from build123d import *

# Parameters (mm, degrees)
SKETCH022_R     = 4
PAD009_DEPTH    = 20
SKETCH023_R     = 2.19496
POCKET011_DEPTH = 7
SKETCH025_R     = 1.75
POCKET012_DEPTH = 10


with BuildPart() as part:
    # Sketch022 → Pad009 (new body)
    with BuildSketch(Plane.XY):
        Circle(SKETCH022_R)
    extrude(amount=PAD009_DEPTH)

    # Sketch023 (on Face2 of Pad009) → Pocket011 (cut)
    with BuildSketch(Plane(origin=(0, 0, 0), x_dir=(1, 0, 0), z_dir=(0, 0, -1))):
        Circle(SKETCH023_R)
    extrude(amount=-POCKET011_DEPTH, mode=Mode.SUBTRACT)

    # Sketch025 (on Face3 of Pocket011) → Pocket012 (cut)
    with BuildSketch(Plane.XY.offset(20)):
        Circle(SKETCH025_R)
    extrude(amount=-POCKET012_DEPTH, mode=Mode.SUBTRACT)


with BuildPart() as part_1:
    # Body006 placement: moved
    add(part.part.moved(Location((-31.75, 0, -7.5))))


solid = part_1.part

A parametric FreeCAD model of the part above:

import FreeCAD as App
import Part
import Sketcher
Q = App.Units.Quantity

doc = App.newDocument("Part")
body = doc.addObject("PartDesign::Body", "Body")

# Sketch on XY plane
sketch1 = doc.addObject("Sketcher::SketchObject", "Sketch")
body.addObject(sketch1)
sketch1.AttachmentSupport = (doc.XY_Plane, [""])
sketch1.MapMode = "FlatFace"
sketch1.addGeometry(Part.Circle(App.Vector(0, 0, 0), App.Vector(0, 0, 1), 4), False)
sketch1.addConstraint([
    Sketcher.Constraint("Coincident", 0, 3, -1, 1),
    Sketcher.Constraint("Diameter", 0, Q("8 mm")),
])
pad1 = doc.addObject("PartDesign::Pad", "Pad")
body.addObject(pad1)
pad1.Profile = sketch1
pad1.Length = 20

# Sketch on XY plane
sketch2 = doc.addObject("Sketcher::SketchObject", "Sketch001")
body.addObject(sketch2)
sketch2.AttachmentSupport = (doc.XY_Plane, [""])
sketch2.MapMode = "FlatFace"
sketch2.addGeometry(Part.Circle(App.Vector(0, 0, 0), App.Vector(0, 0, 1), 2.2), False)
sketch2.addConstraint([
    Sketcher.Constraint("Coincident", 0, 3, -1, 1),
    Sketcher.Constraint("Diameter", 0, Q("4.38992 mm")),
])
pocket1 = doc.addObject("PartDesign::Pocket", "Pocket")
body.addObject(pocket1)
pocket1.Profile = sketch2
pocket1.Length = 7
pocket1.Reversed = True

# Sketch on XY plane
sketch3 = doc.addObject("Sketcher::SketchObject", "Sketch002")
body.addObject(sketch3)
sketch3.AttachmentSupport = (doc.XY_Plane, [""])
sketch3.MapMode = "FlatFace"
sketch3.AttachmentOffset = App.Placement(App.Vector(0, 0, 20), App.Rotation())
sketch3.addGeometry(Part.Circle(App.Vector(0, 0, 0), App.Vector(0, 0, 1), 1.8), False)
sketch3.addConstraint([
    Sketcher.Constraint("Coincident", 0, 3, -1, 1),
    Sketcher.Constraint("Diameter", 0, Q("3.5 mm")),
])
pocket2 = doc.addObject("PartDesign::Pocket", "Pocket001")
body.addObject(pocket2)
pocket2.Profile = sketch3
pocket2.Length = 10
body2 = doc.addObject("PartDesign::Body", "Body001")
doc.recompute()

body.Placement = App.Placement(App.Vector(-31.75, 0, -7.5), App.Rotation(App.Vector(0, 0, 1), 0))
boolean = doc.addObject("PartDesign::Boolean", "Boolean")
body2.addObject(boolean)
boolean.Type = "Fuse"
boolean.addObjects([body])

doc.recompute()
